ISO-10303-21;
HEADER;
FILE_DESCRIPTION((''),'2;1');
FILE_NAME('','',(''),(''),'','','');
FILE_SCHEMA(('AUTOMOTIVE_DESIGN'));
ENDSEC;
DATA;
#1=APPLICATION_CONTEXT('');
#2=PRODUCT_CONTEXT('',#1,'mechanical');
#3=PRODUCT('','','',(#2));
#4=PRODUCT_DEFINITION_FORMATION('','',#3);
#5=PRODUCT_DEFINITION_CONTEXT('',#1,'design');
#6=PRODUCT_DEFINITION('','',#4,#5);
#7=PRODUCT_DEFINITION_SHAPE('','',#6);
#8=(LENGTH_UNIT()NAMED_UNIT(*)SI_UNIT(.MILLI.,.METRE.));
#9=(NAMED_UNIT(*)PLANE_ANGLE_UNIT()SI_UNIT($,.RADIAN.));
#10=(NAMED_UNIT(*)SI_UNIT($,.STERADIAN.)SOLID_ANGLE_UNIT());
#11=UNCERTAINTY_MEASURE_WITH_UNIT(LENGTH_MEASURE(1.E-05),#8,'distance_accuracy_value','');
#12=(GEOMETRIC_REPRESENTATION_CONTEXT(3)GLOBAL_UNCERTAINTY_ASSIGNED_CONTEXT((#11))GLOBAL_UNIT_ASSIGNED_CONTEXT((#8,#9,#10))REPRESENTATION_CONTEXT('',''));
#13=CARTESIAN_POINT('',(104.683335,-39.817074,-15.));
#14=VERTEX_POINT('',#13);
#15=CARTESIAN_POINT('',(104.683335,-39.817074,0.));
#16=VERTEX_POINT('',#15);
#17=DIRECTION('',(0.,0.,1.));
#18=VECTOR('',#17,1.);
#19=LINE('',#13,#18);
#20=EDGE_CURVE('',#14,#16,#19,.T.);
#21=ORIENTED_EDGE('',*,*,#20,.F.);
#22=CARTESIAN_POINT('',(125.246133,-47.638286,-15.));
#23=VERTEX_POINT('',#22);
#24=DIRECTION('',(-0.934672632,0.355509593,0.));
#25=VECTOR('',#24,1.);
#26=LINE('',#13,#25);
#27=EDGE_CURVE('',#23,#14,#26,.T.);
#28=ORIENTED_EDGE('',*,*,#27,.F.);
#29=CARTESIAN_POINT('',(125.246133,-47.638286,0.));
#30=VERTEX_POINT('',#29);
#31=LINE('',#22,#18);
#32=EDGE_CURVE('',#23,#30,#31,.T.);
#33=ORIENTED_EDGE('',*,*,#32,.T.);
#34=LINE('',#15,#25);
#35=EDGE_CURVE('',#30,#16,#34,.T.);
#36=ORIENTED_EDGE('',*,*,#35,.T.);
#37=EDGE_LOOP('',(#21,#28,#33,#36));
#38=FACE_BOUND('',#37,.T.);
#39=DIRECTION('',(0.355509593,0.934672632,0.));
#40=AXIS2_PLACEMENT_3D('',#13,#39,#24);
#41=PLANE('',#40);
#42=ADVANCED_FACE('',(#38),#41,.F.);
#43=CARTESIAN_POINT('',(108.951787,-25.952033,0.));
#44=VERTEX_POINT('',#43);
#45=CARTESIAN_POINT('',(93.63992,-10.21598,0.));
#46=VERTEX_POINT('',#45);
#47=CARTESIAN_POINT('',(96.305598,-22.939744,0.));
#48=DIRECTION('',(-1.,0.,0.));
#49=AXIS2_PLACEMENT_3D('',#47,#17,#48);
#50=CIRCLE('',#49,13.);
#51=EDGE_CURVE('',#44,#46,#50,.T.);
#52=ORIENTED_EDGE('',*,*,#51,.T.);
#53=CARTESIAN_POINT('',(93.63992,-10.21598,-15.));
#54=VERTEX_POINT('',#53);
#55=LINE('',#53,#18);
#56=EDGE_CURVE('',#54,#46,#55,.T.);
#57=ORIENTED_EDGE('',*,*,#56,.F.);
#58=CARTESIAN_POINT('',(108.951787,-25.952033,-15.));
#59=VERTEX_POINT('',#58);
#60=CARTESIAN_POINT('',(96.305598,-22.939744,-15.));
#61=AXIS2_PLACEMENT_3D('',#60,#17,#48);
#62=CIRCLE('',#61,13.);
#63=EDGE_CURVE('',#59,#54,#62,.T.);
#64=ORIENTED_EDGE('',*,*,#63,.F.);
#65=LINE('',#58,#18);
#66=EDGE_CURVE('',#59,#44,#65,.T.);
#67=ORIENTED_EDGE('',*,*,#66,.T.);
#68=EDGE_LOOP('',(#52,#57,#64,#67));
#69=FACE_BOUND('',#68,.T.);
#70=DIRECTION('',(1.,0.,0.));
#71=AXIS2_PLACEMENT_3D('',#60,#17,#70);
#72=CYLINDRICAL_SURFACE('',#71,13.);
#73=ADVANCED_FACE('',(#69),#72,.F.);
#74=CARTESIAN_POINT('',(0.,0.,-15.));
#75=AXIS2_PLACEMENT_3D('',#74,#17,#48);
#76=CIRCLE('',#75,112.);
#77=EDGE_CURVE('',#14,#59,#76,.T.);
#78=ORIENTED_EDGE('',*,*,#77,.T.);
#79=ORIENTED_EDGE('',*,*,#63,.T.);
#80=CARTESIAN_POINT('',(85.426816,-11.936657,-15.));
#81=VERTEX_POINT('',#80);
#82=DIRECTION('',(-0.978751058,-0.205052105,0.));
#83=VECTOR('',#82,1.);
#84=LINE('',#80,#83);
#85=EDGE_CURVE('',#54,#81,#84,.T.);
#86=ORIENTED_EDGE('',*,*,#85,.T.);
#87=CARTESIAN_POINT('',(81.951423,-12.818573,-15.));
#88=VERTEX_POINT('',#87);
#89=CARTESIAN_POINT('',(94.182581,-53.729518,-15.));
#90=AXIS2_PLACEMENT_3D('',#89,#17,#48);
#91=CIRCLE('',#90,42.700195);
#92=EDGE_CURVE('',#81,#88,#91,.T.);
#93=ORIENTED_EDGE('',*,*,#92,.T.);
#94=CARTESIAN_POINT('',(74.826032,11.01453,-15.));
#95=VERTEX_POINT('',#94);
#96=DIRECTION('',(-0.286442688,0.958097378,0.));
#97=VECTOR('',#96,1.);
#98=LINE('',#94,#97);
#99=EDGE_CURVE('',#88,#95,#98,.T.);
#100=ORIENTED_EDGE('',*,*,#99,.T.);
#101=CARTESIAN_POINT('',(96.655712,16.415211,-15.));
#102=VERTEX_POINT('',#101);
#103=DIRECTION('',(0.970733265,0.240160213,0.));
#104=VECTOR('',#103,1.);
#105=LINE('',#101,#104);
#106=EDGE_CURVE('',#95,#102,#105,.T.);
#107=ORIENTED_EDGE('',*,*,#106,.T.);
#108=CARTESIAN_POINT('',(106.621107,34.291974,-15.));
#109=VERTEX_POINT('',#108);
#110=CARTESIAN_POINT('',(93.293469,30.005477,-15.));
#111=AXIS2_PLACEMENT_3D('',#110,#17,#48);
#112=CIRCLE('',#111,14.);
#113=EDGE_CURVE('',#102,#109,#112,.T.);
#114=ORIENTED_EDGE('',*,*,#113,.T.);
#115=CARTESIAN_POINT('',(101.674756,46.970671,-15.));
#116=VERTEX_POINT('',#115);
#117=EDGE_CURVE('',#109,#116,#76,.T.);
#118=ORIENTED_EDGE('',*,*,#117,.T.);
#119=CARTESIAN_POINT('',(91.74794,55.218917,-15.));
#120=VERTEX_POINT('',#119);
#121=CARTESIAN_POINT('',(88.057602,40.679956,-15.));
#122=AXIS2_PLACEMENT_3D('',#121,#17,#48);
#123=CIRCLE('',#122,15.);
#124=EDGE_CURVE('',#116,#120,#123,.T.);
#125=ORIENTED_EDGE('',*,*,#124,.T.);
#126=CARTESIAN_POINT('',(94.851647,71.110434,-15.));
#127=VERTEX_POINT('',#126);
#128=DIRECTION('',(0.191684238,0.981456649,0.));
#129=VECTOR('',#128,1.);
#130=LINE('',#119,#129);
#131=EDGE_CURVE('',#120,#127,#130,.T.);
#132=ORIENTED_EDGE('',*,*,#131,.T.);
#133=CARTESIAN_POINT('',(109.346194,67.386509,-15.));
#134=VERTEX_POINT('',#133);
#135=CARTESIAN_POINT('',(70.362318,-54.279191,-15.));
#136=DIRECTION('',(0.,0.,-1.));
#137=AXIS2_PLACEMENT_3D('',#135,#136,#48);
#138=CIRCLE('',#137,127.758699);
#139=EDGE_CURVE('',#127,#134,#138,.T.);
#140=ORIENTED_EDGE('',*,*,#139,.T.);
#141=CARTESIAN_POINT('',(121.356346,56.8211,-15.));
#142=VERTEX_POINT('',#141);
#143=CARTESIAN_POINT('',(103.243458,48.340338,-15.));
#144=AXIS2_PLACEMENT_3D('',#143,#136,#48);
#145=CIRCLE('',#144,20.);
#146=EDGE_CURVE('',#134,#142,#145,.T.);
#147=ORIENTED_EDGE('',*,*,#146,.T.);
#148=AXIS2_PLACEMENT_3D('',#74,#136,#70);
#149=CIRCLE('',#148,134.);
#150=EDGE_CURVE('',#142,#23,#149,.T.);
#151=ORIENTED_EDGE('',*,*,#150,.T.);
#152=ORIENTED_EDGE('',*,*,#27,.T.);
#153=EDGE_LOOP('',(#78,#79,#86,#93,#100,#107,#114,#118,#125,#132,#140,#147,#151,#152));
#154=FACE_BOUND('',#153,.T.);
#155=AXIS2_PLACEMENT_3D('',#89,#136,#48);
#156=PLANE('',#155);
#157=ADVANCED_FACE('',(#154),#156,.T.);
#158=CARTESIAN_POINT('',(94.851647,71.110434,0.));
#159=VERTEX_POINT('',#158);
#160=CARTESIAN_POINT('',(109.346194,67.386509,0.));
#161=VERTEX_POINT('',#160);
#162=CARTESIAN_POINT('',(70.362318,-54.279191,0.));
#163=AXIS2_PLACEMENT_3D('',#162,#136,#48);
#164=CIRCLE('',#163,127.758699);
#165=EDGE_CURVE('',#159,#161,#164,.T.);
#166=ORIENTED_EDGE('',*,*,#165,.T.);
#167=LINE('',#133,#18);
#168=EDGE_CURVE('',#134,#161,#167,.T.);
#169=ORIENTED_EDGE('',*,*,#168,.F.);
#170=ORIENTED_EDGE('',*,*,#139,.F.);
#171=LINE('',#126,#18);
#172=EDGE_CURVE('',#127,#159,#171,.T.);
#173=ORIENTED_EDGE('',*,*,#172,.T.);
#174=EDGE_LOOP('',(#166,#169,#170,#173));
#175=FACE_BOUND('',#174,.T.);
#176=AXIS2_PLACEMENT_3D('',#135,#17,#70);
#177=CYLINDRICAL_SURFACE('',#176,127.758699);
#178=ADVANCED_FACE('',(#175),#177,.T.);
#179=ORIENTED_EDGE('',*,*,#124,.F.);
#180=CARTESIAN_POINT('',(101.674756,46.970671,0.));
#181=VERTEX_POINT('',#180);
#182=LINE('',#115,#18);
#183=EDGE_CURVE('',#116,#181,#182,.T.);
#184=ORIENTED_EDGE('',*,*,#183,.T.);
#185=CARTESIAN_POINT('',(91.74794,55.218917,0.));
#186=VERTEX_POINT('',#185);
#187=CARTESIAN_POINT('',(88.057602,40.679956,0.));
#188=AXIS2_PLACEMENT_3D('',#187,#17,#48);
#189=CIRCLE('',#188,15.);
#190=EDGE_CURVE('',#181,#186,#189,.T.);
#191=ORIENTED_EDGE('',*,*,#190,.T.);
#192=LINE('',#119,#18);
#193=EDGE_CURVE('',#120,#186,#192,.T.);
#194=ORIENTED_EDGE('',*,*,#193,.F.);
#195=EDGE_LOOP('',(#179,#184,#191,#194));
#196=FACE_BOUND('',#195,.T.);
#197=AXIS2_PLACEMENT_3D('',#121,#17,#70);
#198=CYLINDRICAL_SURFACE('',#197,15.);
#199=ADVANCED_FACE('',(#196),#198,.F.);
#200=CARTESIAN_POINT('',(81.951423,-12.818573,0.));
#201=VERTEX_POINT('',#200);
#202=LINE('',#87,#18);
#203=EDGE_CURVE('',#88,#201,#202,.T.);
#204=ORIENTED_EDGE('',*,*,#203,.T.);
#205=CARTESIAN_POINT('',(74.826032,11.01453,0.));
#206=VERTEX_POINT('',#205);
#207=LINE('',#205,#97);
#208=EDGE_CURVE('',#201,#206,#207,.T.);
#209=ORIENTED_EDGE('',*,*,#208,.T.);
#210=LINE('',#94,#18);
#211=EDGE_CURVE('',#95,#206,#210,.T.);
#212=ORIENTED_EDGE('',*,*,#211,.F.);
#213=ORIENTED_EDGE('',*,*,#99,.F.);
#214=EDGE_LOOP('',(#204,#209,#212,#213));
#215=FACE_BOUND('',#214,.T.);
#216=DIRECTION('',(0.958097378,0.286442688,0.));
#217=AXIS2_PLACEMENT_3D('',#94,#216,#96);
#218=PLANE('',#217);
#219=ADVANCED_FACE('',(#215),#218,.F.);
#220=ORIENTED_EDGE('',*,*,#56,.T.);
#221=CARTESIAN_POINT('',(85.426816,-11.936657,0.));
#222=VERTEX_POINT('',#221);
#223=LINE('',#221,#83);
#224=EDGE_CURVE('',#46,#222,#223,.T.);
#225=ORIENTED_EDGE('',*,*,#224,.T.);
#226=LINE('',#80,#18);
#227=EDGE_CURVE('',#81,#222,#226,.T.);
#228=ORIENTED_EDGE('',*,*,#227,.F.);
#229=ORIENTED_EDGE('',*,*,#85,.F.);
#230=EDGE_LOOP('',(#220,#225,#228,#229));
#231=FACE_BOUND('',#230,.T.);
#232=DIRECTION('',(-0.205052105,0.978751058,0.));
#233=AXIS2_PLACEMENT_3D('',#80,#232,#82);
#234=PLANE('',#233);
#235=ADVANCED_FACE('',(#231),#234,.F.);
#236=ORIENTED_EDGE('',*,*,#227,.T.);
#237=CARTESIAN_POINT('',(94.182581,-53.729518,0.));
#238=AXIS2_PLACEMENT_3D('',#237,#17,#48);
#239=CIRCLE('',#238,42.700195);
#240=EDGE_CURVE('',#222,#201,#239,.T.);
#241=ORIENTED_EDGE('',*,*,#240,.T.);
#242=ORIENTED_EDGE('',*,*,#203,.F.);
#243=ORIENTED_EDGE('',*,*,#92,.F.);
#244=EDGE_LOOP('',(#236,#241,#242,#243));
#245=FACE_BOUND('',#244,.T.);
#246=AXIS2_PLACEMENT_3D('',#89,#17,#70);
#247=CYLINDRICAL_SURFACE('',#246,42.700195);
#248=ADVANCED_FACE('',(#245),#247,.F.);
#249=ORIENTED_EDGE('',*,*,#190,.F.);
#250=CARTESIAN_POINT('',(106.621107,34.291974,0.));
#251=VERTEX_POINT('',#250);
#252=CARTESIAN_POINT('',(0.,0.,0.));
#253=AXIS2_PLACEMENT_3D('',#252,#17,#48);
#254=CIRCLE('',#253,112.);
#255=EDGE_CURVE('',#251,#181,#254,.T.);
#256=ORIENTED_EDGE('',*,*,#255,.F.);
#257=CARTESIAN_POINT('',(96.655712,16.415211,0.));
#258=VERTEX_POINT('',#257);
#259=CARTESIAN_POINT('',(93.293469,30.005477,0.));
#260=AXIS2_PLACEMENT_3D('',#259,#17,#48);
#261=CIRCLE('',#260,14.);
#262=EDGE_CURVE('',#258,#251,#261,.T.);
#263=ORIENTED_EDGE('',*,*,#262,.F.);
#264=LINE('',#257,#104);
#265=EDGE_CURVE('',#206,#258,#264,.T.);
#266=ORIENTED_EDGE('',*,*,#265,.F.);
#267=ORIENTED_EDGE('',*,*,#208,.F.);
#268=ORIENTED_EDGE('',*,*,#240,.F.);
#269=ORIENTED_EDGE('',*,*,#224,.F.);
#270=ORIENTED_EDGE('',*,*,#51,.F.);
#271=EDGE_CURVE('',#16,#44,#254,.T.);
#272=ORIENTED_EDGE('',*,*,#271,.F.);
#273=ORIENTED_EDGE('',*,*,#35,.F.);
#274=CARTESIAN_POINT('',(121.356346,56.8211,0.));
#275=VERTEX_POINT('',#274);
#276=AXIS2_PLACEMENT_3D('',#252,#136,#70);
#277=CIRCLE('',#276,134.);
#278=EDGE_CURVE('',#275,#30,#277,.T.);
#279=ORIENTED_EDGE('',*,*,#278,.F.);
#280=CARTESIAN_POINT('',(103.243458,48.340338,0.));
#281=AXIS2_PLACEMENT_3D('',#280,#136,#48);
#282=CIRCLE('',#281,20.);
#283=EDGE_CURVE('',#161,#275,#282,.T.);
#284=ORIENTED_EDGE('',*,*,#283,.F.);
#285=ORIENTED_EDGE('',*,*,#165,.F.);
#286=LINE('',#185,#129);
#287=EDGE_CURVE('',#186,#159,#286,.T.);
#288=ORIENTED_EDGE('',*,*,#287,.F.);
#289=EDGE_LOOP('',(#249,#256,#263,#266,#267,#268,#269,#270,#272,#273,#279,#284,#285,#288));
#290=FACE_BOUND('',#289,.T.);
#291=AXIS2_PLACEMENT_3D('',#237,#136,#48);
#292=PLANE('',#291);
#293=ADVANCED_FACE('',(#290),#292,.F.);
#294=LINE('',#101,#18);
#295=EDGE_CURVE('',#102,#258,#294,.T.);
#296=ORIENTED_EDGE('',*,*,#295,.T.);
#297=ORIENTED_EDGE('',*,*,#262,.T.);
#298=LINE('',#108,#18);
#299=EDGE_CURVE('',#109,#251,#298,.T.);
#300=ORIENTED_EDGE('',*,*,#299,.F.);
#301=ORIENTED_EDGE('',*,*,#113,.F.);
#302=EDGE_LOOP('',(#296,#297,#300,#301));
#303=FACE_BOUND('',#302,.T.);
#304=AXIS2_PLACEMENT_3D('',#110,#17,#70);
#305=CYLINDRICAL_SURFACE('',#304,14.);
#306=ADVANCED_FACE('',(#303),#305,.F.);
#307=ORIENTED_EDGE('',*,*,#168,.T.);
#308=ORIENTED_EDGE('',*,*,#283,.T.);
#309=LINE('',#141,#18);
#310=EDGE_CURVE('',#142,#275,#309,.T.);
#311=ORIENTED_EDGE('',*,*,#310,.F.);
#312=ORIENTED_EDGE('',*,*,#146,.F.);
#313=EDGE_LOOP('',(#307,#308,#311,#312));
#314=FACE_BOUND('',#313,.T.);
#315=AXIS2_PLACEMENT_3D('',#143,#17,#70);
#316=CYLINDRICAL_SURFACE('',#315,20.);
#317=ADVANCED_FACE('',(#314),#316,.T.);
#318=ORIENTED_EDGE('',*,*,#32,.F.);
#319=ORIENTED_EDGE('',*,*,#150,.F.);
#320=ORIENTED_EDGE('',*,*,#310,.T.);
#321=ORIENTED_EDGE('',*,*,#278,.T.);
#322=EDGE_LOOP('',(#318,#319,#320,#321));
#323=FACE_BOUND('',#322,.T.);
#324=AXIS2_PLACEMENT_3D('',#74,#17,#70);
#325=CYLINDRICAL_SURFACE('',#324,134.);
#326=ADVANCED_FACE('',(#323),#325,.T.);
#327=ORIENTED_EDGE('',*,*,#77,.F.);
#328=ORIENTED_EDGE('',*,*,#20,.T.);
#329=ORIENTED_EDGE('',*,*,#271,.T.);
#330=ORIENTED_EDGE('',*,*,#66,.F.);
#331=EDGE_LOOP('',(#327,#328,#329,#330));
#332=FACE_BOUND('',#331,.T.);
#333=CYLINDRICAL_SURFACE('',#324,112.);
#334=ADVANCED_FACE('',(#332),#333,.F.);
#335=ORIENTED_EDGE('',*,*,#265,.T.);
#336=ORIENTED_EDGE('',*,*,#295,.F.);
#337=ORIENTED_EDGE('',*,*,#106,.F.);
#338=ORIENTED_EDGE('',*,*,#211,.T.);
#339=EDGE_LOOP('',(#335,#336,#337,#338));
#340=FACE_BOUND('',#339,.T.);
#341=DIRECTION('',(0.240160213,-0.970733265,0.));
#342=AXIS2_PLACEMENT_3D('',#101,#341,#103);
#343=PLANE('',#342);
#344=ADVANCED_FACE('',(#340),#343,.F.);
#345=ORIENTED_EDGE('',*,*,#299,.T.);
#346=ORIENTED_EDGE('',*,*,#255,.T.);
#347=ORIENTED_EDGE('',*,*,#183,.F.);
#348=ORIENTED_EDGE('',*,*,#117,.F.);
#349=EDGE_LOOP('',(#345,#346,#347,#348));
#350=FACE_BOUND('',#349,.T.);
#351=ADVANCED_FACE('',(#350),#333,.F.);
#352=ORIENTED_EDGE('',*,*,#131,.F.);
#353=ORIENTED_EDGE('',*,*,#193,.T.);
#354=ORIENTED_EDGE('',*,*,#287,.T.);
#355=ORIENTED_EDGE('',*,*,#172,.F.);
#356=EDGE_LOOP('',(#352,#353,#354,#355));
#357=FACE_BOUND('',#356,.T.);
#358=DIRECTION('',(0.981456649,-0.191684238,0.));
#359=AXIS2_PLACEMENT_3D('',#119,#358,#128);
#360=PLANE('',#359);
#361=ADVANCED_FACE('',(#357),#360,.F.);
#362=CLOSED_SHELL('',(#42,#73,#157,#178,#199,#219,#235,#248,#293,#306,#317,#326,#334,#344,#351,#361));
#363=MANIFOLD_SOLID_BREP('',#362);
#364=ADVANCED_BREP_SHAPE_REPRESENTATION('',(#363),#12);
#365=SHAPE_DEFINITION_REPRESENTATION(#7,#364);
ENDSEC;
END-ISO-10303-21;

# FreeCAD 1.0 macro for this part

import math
import FreeCAD as App
import Part
import Sketcher
from FreeCAD import Vector
Q = App.Units.Quantity

doc = App.newDocument("Part")
body = doc.addObject("PartDesign::Body", "Body")

sketch1 = body.newObject("Sketcher::SketchObject", "Sketch")
sketch1.AttachmentSupport = (doc.getObject("XY_Plane"), [""])
sketch1.MapMode = "FlatFace"
sketch1.addGeometry(Part.LineSegment(Vector(82, -12.8, 0), Vector(74.8, 11, 0)), False)
sketch1.addGeometry(Part.LineSegment(Vector(74.8, 11, 0), Vector(96.7, 16.4, 0)), False)
sketch1.addGeometry(Part.ArcOfCircle(Part.Circle(Vector(93.3, 30, 0), Vector(0, 0, 1), 14), math.radians(-76), math.radians(18)), False)
sketch1.addGeometry(Part.ArcOfCircle(Part.Circle(Vector(0, 0, 0), Vector(0, 0, 1), 112), math.radians(17.83), math.radians(24.8)), False)
sketch1.addGeometry(Part.ArcOfCircle(Part.Circle(Vector(88.1, 40.7, 0), Vector(0, 0, 1), 15), math.radians(25), math.radians(76)), False)
sketch1.addGeometry(Part.LineSegment(Vector(91.7, 55.2, 0), Vector(94.9, 71.1, 0)), False)
sketch1.addGeometry(Part.ArcOfCircle(Part.Circle(Vector(70.4, -54.3, 0), Vector(0, 0, 1), 127.8), math.radians(72.23), math.radians(78.95)), False)
sketch1.addGeometry(Part.ArcOfCircle(Part.Circle(Vector(103.2, 48.3, 0), Vector(0, 0, 1), 20), math.radians(25), math.radians(72)), False)
sketch1.addGeometry(Part.ArcOfCircle(Part.Circle(Vector(0, 0, 0), Vector(0, 0, 1), 134), math.radians(-21), math.radians(25)), False)
sketch1.addGeometry(Part.LineSegment(Vector(125.2, -47.6, 0), Vector(104.7, -39.8, 0)), False)
sketch1.addGeometry(Part.ArcOfCircle(Part.Circle(Vector(0, 0, 0), Vector(0, 0, 1), 112), math.radians(-20.82), math.radians(-13.4)), False)
sketch1.addGeometry(Part.ArcOfCircle(Part.Circle(Vector(96.3, -22.9, 0), Vector(0, 0, 1), 13), math.radians(-13), math.radians(102)), False)
sketch1.addGeometry(Part.LineSegment(Vector(93.6, -10.2, 0), Vector(85.4, -11.9, 0)), False)
sketch1.addGeometry(Part.ArcOfCircle(Part.Circle(Vector(94.2, -53.7, 0), Vector(0, 0, 1), 42.7), math.radians(101.83), math.radians(106.65)), False)
sketch1.addConstraint(Sketcher.Constraint("Coincident", 0, 2, 1, 1))
sketch1.addConstraint(Sketcher.Constraint("Tangent", 1, 2, 2, 1))
sketch1.addConstraint(Sketcher.Constraint("Tangent", 2, 2, 3, 1))
sketch1.addConstraint(Sketcher.Constraint("Tangent", 3, 2, 4, 1))
sketch1.addConstraint(Sketcher.Constraint("Coincident", 4, 2, 5, 1))
sketch1.addConstraint(Sketcher.Constraint("Coincident", 5, 2, 6, 2))
sketch1.addConstraint(Sketcher.Constraint("Tangent", 6, 1, 7, 2))
sketch1.addConstraint(Sketcher.Constraint("Tangent", 7, 1, 8, 2))
sketch1.addConstraint(Sketcher.Constraint("Coincident", 8, 1, 9, 1))
sketch1.addConstraint(Sketcher.Constraint("Coincident", 9, 2, 10, 1))
sketch1.addConstraint(Sketcher.Constraint("Tangent", 10, 2, 11, 1))
sketch1.addConstraint(Sketcher.Constraint("Tangent", 11, 2, 12, 1))
sketch1.addConstraint(Sketcher.Constraint("Tangent", 12, 2, 13, 1))
sketch1.addConstraint(Sketcher.Constraint("Coincident", 13, 2, 0, 1))
sketch1.addConstraint(Sketcher.Constraint("Coincident", 3, 3, -1, 1))
sketch1.addConstraint(Sketcher.Constraint("Coincident", 8, 3, -1, 1))
sketch1.addConstraint(Sketcher.Constraint("Coincident", 10, 3, -1, 1))
sketch1.addConstraint(Sketcher.Constraint("Equal", 3, 10))
sketch1.addConstraint(Sketcher.Constraint("Radius", 2, Q("14 mm")))
sketch1.addConstraint(Sketcher.Constraint("Radius", 3, Q("112 mm")))
sketch1.addConstraint(Sketcher.Constraint("Radius", 4, Q("15 mm")))
sketch1.addConstraint(Sketcher.Constraint("Radius", 7, Q("20 mm")))
sketch1.addConstraint(Sketcher.Constraint("Radius", 8, Q("134 mm")))
sketch1.addConstraint(Sketcher.Constraint("Radius", 11, Q("13 mm")))
sketch1.addConstraint(Sketcher.Constraint("Radius", 6, Q("127.758699 mm")))
sketch1.addConstraint(Sketcher.Constraint("Radius", 13, Q("42.700195 mm")))
sketch1.addConstraint(Sketcher.Constraint("DistanceX", -1, 1, 4, 3, Q("88.057602 mm")))
sketch1.addConstraint(Sketcher.Constraint("DistanceY", -1, 1, 7, 1, Q("56.8211 mm")))
sketch1.addConstraint(Sketcher.Constraint("DistanceY", 11, 3, 4, 3, Q("63.619699 mm")))
sketch1.addConstraint(Sketcher.Constraint("DistanceX", 0, 2, 8, 1, Q("50.420101 mm")))
sketch1.addConstraint(Sketcher.Constraint("Distance", 0, Q("24.87545 mm")))
sketch1.addConstraint(Sketcher.Constraint("DistanceX", -1, 1, 2, 3, Q("93.293469 mm")))
sketch1.addConstraint(Sketcher.Constraint("DistanceY", 6, 3, -1, 1, Q("54.279191 mm")))
sketch1.addConstraint(Sketcher.Constraint("DistanceX", -1, 1, 13, 3, Q("94.182581 mm")))
sketch1.addConstraint(Sketcher.Constraint("DistanceY", -1, 1, 0, 2, Q("11.01453 mm")))
sketch1.addConstraint(Sketcher.Constraint("DistanceX", -1, 1, 1, 2, Q("96.655712 mm")))
sketch1.addConstraint(Sketcher.Constraint("DistanceX", -1, 1, 4, 2, Q("91.74794 mm")))
sketch1.addConstraint(Sketcher.Constraint("DistanceX", 5, 2, 7, 3, Q("8.391812 mm")))
sketch1.addConstraint(Sketcher.Constraint("DistanceY", 9, 2, 11, 3, Q("16.877331 mm")))
sketch1.addConstraint(Sketcher.Constraint("DistanceY", 11, 3, 13, 2, Q("10.121171 mm")))
pad1 = body.newObject("PartDesign::Pad", "Pad")
pad1.Profile = sketch1
pad1.Length = 15
pad1.Reversed = True

doc.recompute()
